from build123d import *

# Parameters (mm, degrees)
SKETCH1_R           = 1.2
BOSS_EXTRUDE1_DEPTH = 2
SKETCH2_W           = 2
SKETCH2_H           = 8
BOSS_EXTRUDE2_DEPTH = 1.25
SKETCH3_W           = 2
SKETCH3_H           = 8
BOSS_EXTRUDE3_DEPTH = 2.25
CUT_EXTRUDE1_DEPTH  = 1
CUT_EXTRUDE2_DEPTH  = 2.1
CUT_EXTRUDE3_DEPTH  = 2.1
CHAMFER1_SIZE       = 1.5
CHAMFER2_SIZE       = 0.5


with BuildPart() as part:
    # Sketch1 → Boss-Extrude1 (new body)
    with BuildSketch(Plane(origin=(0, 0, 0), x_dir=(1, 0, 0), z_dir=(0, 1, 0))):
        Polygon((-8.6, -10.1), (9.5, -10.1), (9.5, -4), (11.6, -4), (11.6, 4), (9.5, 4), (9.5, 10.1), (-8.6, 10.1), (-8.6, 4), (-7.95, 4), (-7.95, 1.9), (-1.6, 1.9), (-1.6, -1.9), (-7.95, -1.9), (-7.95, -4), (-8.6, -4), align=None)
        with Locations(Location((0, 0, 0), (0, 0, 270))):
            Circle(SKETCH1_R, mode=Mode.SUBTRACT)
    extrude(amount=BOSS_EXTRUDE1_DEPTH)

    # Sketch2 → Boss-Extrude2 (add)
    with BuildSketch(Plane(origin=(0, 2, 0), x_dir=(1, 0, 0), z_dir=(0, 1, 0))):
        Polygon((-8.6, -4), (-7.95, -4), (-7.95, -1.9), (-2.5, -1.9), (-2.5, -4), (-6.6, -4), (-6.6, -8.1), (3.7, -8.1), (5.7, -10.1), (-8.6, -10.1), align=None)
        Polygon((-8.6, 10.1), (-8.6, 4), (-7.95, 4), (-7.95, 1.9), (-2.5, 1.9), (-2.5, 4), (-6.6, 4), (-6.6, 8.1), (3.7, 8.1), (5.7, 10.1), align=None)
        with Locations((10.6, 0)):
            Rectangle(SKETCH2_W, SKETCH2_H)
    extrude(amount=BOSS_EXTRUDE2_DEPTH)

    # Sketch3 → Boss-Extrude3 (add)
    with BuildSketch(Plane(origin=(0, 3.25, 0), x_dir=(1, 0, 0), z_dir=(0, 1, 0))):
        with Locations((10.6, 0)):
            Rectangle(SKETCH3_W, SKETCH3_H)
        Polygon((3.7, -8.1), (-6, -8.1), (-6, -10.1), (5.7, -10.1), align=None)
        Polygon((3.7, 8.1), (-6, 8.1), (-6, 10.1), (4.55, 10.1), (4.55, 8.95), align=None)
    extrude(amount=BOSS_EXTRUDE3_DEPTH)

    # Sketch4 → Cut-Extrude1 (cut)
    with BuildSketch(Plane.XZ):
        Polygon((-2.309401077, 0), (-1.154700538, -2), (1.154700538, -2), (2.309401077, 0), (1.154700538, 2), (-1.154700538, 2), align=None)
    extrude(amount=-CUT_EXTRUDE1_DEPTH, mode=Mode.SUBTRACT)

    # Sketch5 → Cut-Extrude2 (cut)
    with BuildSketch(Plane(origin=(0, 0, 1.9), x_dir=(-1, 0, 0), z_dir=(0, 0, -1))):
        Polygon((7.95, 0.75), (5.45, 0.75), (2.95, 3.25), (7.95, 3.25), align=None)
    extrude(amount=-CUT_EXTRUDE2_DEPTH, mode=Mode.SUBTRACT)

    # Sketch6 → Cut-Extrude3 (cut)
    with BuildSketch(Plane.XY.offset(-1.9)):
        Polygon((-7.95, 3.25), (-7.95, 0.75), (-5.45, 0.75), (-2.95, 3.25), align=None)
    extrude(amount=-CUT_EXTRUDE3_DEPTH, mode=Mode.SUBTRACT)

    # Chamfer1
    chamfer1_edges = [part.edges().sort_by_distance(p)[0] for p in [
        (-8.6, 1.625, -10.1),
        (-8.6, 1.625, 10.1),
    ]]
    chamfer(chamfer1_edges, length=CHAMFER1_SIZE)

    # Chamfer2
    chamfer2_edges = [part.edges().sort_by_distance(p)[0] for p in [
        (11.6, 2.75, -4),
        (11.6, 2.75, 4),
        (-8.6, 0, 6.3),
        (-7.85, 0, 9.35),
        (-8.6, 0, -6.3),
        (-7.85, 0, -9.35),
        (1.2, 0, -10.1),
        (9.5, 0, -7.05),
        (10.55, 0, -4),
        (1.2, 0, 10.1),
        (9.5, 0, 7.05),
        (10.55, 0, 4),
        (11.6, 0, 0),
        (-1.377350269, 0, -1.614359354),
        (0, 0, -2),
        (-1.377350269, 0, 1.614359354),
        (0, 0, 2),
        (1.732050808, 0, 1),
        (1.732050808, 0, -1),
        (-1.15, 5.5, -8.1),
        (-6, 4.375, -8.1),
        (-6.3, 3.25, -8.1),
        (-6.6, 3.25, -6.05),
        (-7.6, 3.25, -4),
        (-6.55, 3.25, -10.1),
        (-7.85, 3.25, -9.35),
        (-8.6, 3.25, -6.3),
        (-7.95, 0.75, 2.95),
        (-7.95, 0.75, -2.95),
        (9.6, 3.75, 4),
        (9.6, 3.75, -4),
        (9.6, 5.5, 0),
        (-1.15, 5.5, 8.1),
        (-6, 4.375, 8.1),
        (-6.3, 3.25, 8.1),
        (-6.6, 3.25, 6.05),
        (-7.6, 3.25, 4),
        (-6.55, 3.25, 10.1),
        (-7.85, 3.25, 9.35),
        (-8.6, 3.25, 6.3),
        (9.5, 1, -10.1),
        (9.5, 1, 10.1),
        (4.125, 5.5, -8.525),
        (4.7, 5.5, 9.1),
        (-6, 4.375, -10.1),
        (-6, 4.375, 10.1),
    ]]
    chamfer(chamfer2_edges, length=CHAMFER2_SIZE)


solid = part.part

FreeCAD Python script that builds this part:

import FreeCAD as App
import Part
import Sketcher
Q = App.Units.Quantity


def edges_at(feature, points):
    """Names of the edges that pass closest to the given points."""
    edges = feature.Shape.Edges
    near = lambda p: min(range(len(edges)), key=lambda i: edges[i].distToShape(Part.Vertex(*p))[0])
    return sorted({f"Edge{near(p) + 1}" for p in points})


def add_polygon(sketch, points):
    """Adds a closed chain of lines whose ends are joined by coincident constraints."""
    first, n = sketch.GeometryCount, len(points)
    for a, b in zip(points, points[1:] + points[:1]):
        sketch.addGeometry(Part.LineSegment(App.Vector(*a, 0), App.Vector(*b, 0)), False)
    for i in range(n):
        sketch.addConstraint(Sketcher.Constraint("Coincident", first + i, 2, first + (i + 1) % n, 1))

doc = App.newDocument("Part")
body = doc.addObject("PartDesign::Body", "Body")

# Sketch on XZ plane
sketch1 = body.newObject("Sketcher::SketchObject", "Sketch")
sketch1.AttachmentSupport = (doc.getObject("XZ_Plane"), [""])
sketch1.MapMode = "FlatFace"
add_polygon(sketch1, [(-8.6, 10.1), (9.5, 10.1), (9.5, 4), (11.6, 4), (11.6, -4), (9.5, -4), (9.5, -10.1), (-8.6, -10.1), (-8.6, -4), (-8, -4), (-8, -1.9), (-1.6, -1.9), (-1.6, 1.9), (-8, 1.9), (-8, 4), (-8.6, 4)])  # lines 0-15
sketch1.addGeometry(Part.Circle(App.Vector(0, 0, 0), App.Vector(0, 0, 1), 1.2), False)  # 16
sketch1.addConstraint([
    Sketcher.Constraint("Horizontal", 0),
    Sketcher.Constraint("Vertical", 1),
    Sketcher.Constraint("Horizontal", 2),
    Sketcher.Constraint("Vertical", 3),
    Sketcher.Constraint("Horizontal", 4),
    Sketcher.Constraint("Vertical", 5),
    Sketcher.Constraint("Horizontal", 6),
    Sketcher.Constraint("Vertical", 7),
    Sketcher.Constraint("Horizontal", 8),
    Sketcher.Constraint("Vertical", 9),
    Sketcher.Constraint("Horizontal", 10),
    Sketcher.Constraint("Vertical", 11),
    Sketcher.Constraint("Horizontal", 12),
    Sketcher.Constraint("Vertical", 13),
    Sketcher.Constraint("Horizontal", 14),
    Sketcher.Constraint("Vertical", 15),
    Sketcher.Constraint("Coincident", 16, 3, -1, 1),
    Sketcher.Constraint("Symmetric", 1, 2, 4, 2, -1),
    Sketcher.Constraint("Symmetric", 9, 2, 12, 2, -1),
    Sketcher.Constraint("Symmetric", 7, 2, 14, 2, -1),
    Sketcher.Constraint("Horizontal", 4, 2, 7, 2),
    Sketcher.Constraint("Equal", 1, 5),
    Sketcher.Constraint("Equal", 4, 9),
    Sketcher.Constraint("Diameter", 16, Q("2.4 mm")),
    Sketcher.Constraint("DistanceY", 3, 2, 3, 1, Q("8 mm")),
    Sketcher.Constraint("DistanceX", 0, 1, 0, 2, Q("18.1 mm")),
    Sketcher.Constraint("DistanceX", 2, 1, 2, 2, Q("2.1 mm")),
    Sketcher.Constraint("DistanceY", 1, 2, 1, 1, Q("6.1 mm")),
    Sketcher.Constraint("DistanceX", 7, 2, 10, 2, Q("7 mm")),
    Sketcher.Constraint("DistanceX", 8, 1, 8, 2, Q("0.65 mm")),
    Sketcher.Constraint("DistanceX", -1, 1, 0, 2, Q("9.5 mm")),
])
pad1 = body.newObject("PartDesign::Pad", "Pad")
pad1.Profile = sketch1
pad1.Length = 2
pad1.Reversed = True

# Sketch on XZ plane
sketch2 = body.newObject("Sketcher::SketchObject", "Sketch001")
sketch2.AttachmentSupport = (doc.getObject("XZ_Plane"), [""])
sketch2.MapMode = "FlatFace"
sketch2.AttachmentOffset = App.Placement(App.Vector(0, 0, -2), App.Rotation())
add_polygon(sketch2, [(-8, 4), (-8.6, 4), (-8.6, 10.1), (5.7, 10.1), (3.7, 8.1), (-6.6, 8.1), (-6.6, 4), (-2.5, 4), (-2.5, 1.9), (-8, 1.9)])  # lines 0-9
add_polygon(sketch2, [(-8.6, -10.1), (-8.6, -4), (-8, -4), (-8, -1.9), (-2.5, -1.9), (-2.5, -4), (-6.6, -4), (-6.6, -8.1), (3.7, -8.1), (5.7, -10.1)])  # lines 10-19
add_polygon(sketch2, [(9.6, -4), (9.6, 4), (11.6, 4), (11.6, -4)])  # lines 20-23
sketch2.addConstraint([
    Sketcher.Constraint("Horizontal", 0),
    Sketcher.Constraint("Vertical", 1),
    Sketcher.Constraint("Horizontal", 2),
    Sketcher.Constraint("Horizontal", 4),
    Sketcher.Constraint("Vertical", 5),
    Sketcher.Constraint("Horizontal", 6),
    Sketcher.Constraint("Vertical", 7),
    Sketcher.Constraint("Horizontal", 8),
    Sketcher.Constraint("Vertical", 9),
    Sketcher.Constraint("Vertical", 10),
    Sketcher.Constraint("Horizontal", 11),
    Sketcher.Constraint("Vertical", 12),
    Sketcher.Constraint("Horizontal", 13),
    Sketcher.Constraint("Vertical", 14),
    Sketcher.Constraint("Horizontal", 15),
    Sketcher.Constraint("Vertical", 16),
    Sketcher.Constraint("Horizontal", 17),
    Sketcher.Constraint("Horizontal", 19),
    Sketcher.Constraint("Vertical", 20),
    Sketcher.Constraint("Horizontal", 21),
    Sketcher.Constraint("Vertical", 22),
    Sketcher.Constraint("Horizontal", 23),
    Sketcher.Constraint("Symmetric", 0, 2, 10, 2, -1),
    Sketcher.Constraint("Symmetric", 8, 2, 12, 2, -1),
    Sketcher.Constraint("Symmetric", 6, 2, 14, 2, -1),
    Sketcher.Constraint("Symmetric", 4, 2, 16, 2, -1),
    Sketcher.Constraint("Symmetric", 2, 2, 18, 2, -1),
    Sketcher.Constraint("Perpendicular", 3, 18),
    Sketcher.Constraint("Horizontal", 0, 2, 5, 2),
    Sketcher.Constraint("Horizontal", 9, 2, 20, 2),
    Sketcher.Constraint("Horizontal", 15, 2, 22, 2),
    Sketcher.Constraint("Vertical", 3, 2, 17, 2),
    Sketcher.Constraint("Equal", 15, 5),
    Sketcher.Constraint("DistanceX", 21, 1, 21, 2, Q("2 mm")),
    Sketcher.Constraint("DistanceY", 20, 1, 20, 2, Q("8 mm")),
    Sketcher.Constraint("DistanceX", 2, 1, 2, 2, Q("14.3 mm")),
    Sketcher.Constraint("DistanceX", 4, 2, 4, 1, Q("10.3 mm")),
    Sketcher.Constraint("DistanceX", 6, 1, 6, 2, Q("4.1 mm")),
    Sketcher.Constraint("DistanceY", 1, 1, 1, 2, Q("6.1 mm")),
    Sketcher.Constraint("DistanceY", 7, 2, 7, 1, Q("2.1 mm")),
    Sketcher.Constraint("DistanceX", 0, 2, 0, 1, Q("0.65 mm")),
    Sketcher.Constraint("DistanceX", 0, 2, -1, 1, Q("8.6 mm")),
    Sketcher.Constraint("DistanceX", -1, 1, 20, 2, Q("9.6 mm")),
])
pad2 = body.newObject("PartDesign::Pad", "Pad001")
pad2.Profile = sketch2
pad2.Length = 1.25
pad2.Reversed = True

# Sketch on XZ plane
sketch3 = body.newObject("Sketcher::SketchObject", "Sketch002")
sketch3.AttachmentSupport = (doc.getObject("XZ_Plane"), [""])
sketch3.MapMode = "FlatFace"
sketch3.AttachmentOffset = App.Placement(App.Vector(0, 0, -3.25), App.Rotation())
add_polygon(sketch3, [(9.6, -4), (9.6, 4), (11.6, 4), (11.6, -4)])  # lines 0-3
add_polygon(sketch3, [(3.7, 8.1), (-6, 8.1), (-6, 10.1), (5.7, 10.1)])  # lines 4-7
add_polygon(sketch3, [(-6, -8.1), (3.7, -8.1), (4.5, -8.9), (4.5, -10.1), (-6, -10.1)])  # lines 8-12
sketch3.addConstraint([
    Sketcher.Constraint("Vertical", 0),
    Sketcher.Constraint("Horizontal", 1),
    Sketcher.Constraint("Vertical", 2),
    Sketcher.Constraint("Horizontal", 3),
    Sketcher.Constraint("Horizontal", 4),
    Sketcher.Constraint("Vertical", 5),
    Sketcher.Constraint("Horizontal", 6),
    Sketcher.Constraint("Horizontal", 8),
    Sketcher.Constraint("Vertical", 10),
    Sketcher.Constraint("Horizontal", 11),
    Sketcher.Constraint("Vertical", 12),
    Sketcher.Constraint("Symmetric", 7, 2, 8, 2, -1),
    Sketcher.Constraint("Symmetric", 5, 2, 11, 2, -1),
    Sketcher.Constraint("Perpendicular", 7, 9),
    Sketcher.Constraint("Equal", 3, 5),
    Sketcher.Constraint("DistanceX", 1, 1, 1, 2, Q("2 mm")),
    Sketcher.Constraint("DistanceY", 0, 1, 0, 2, Q("8 mm")),
    Sketcher.Constraint("Angle", 7, Q("-135 deg")),
    Sketcher.Constraint("DistanceX", 4, 2, 4, 1, Q("9.7 mm")),
    Sketcher.Constraint("DistanceY", -1, 1, 0, 2, Q("4 mm")),
    Sketcher.Constraint("DistanceX", 4, 2, -1, 1, Q("6 mm")),
    Sketcher.Constraint("DistanceX", 11, 2, 11, 1, Q("10.55 mm")),
    Sketcher.Constraint("DistanceX", -1, 1, 0, 2, Q("9.6 mm")),
    Sketcher.Constraint("DistanceY", -1, 1, 4, 2, Q("8.1 mm")),
])
pad3 = body.newObject("PartDesign::Pad", "Pad002")
pad3.Profile = sketch3
pad3.Length = 2.25
pad3.Reversed = True

# Sketch on XZ plane
sketch4 = body.newObject("Sketcher::SketchObject", "Sketch003")
sketch4.AttachmentSupport = (doc.getObject("XZ_Plane"), [""])
sketch4.MapMode = "FlatFace"
add_polygon(sketch4, [(-2.3, 0), (-1.2, -2), (1.2, -2), (2.3, 0), (1.2, 2), (-1.2, 2)])  # lines 0-5
sketch4.addConstraint([
    Sketcher.Constraint("Horizontal", 1),
    Sketcher.Constraint("Horizontal", 4),
    Sketcher.Constraint("Symmetric", 0, 2, 3, 2, -1, 1),
    Sketcher.Constraint("Symmetric", 2, 2, 5, 2, -1, 1),
    Sketcher.Constraint("PointOnObject", 2, 2, -1),
    Sketcher.Constraint("Parallel", 2, 5),
    Sketcher.Constraint("Vertical", 1, 2, 3, 2),
    Sketcher.Constraint("Angle", 0, Q("-60 deg")),
    Sketcher.Constraint("DistanceY", 0, 2, -1, 1, Q("2 mm")),
    Sketcher.Constraint("DistanceX", 1, 1, 1, 2, Q("2.309401 mm")),
])
pocket1 = body.newObject("PartDesign::Pocket", "Pocket")
pocket1.Profile = sketch4
pocket1.Length = 1

# Sketch on XY plane
sketch5 = body.newObject("Sketcher::SketchObject", "Sketch004")
sketch5.AttachmentSupport = (doc.getObject("XY_Plane"), [""])
sketch5.MapMode = "FlatFace"
sketch5.AttachmentOffset = App.Placement(App.Vector(0, 0, 1.9), App.Rotation())
add_polygon(sketch5, [(-5.5, 0.8), (-8, 0.8), (-8, 3.2), (-3, 3.2)])  # lines 0-3
sketch5.addConstraint([
    Sketcher.Constraint("Horizontal", 0),
    Sketcher.Constraint("Vertical", 1),
    Sketcher.Constraint("Horizontal", 2),
    Sketcher.Constraint("Equal", 0, 1),
    Sketcher.Constraint("DistanceX", 2, 1, 2, 2, Q("5 mm")),
    Sketcher.Constraint("Angle", 3, Q("-135 deg")),
    Sketcher.Constraint("DistanceX", 0, 2, -1, 1, Q("7.95 mm")),
    Sketcher.Constraint("DistanceY", -1, 1, 0, 2, Q("0.75 mm")),
])
pocket2 = body.newObject("PartDesign::Pocket", "Pocket001")
pocket2.Profile = sketch5
pocket2.Length = 2.1
pocket2.Reversed = True

# Sketch on XY plane
sketch6 = body.newObject("Sketcher::SketchObject", "Sketch005")
sketch6.AttachmentSupport = (doc.getObject("XY_Plane"), [""])
sketch6.MapMode = "FlatFace"
sketch6.AttachmentOffset = App.Placement(App.Vector(0, 0, -1.9), App.Rotation())
add_polygon(sketch6, [(-8, 3.2), (-8, 0.8), (-5.5, 0.8), (-3, 3.2)])  # lines 0-3
sketch6.addConstraint([
    Sketcher.Constraint("Vertical", 0),
    Sketcher.Constraint("Horizontal", 1),
    Sketcher.Constraint("Horizontal", 3),
    Sketcher.Constraint("Equal", 1, 0),
    Sketcher.Constraint("DistanceX", 3, 2, 3, 1, Q("5 mm")),
    Sketcher.Constraint("Angle", 2, Q("45 deg")),
    Sketcher.Constraint("DistanceX", 0, 2, -1, 1, Q("7.95 mm")),
    Sketcher.Constraint("DistanceY", -1, 1, 0, 2, Q("0.75 mm")),
])
pocket3 = body.newObject("PartDesign::Pocket", "Pocket002")
pocket3.Profile = sketch6
pocket3.Length = 2.1
doc.recompute()

chamfer = body.newObject("PartDesign::Chamfer", "Chamfer")
chamfer.Base = (pocket3, edges_at(pocket3, [(-8.6, 1.625, -10.1), (-8.6, 1.625, 10.1)]))
chamfer.Size = 1.5
doc.recompute()

chamfer2 = body.newObject("PartDesign::Chamfer", "Chamfer001")
chamfer2.Base = (chamfer, edges_at(chamfer, [
    (11.6, 2.75, -4),
    (11.6, 2.75, 4),
    (-8.6, 0, 6.3),
    (-7.85, 0, 9.35),
    (-8.6, 0, -6.3),
    (-7.85, 0, -9.35),
    (1.2, 0, -10.1),
    (9.5, 0, -7.05),
    (10.55, 0, -4),
    (1.2, 0, 10.1),
    (9.5, 0, 7.05),
    (10.55, 0, 4),
    (11.6, 0, 0),
    (-1.377, 0, -1.614),
    (0, 0, -2),
    (-1.377, 0, 1.614),
    (0, 0, 2),
    (1.732, 0, 1),
    (1.732, 0, -1),
    (-1.15, 5.5, -8.1),
    (-6, 4.375, -8.1),
    (-6.3, 3.25, -8.1),
    (-6.6, 3.25, -6.05),
    (-7.6, 3.25, -4),
    (-6.55, 3.25, -10.1),
    (-7.85, 3.25, -9.35),
    (-8.6, 3.25, -6.3),
    (-7.95, 0.75, 2.95),
    (-7.95, 0.75, -2.95),
    (9.6, 3.75, 4),
    (9.6, 3.75, -4),
    (9.6, 5.5, 0),
    (-1.15, 5.5, 8.1),
    (-6, 4.375, 8.1),
    (-6.3, 3.25, 8.1),
    (-6.6, 3.25, 6.05),
    (-7.6, 3.25, 4),
    (-6.55, 3.25, 10.1),
    (-7.85, 3.25, 9.35),
    (-8.6, 3.25, 6.3),
    (9.5, 1, -10.1),
    (9.5, 1, 10.1),
    (4.125, 5.5, -8.525),
    (4.7, 5.5, 9.1),
    (-6, 4.375, -10.1),
    (-6, 4.375, 10.1),
]))
chamfer2.Size = 0.5

doc.recompute()
